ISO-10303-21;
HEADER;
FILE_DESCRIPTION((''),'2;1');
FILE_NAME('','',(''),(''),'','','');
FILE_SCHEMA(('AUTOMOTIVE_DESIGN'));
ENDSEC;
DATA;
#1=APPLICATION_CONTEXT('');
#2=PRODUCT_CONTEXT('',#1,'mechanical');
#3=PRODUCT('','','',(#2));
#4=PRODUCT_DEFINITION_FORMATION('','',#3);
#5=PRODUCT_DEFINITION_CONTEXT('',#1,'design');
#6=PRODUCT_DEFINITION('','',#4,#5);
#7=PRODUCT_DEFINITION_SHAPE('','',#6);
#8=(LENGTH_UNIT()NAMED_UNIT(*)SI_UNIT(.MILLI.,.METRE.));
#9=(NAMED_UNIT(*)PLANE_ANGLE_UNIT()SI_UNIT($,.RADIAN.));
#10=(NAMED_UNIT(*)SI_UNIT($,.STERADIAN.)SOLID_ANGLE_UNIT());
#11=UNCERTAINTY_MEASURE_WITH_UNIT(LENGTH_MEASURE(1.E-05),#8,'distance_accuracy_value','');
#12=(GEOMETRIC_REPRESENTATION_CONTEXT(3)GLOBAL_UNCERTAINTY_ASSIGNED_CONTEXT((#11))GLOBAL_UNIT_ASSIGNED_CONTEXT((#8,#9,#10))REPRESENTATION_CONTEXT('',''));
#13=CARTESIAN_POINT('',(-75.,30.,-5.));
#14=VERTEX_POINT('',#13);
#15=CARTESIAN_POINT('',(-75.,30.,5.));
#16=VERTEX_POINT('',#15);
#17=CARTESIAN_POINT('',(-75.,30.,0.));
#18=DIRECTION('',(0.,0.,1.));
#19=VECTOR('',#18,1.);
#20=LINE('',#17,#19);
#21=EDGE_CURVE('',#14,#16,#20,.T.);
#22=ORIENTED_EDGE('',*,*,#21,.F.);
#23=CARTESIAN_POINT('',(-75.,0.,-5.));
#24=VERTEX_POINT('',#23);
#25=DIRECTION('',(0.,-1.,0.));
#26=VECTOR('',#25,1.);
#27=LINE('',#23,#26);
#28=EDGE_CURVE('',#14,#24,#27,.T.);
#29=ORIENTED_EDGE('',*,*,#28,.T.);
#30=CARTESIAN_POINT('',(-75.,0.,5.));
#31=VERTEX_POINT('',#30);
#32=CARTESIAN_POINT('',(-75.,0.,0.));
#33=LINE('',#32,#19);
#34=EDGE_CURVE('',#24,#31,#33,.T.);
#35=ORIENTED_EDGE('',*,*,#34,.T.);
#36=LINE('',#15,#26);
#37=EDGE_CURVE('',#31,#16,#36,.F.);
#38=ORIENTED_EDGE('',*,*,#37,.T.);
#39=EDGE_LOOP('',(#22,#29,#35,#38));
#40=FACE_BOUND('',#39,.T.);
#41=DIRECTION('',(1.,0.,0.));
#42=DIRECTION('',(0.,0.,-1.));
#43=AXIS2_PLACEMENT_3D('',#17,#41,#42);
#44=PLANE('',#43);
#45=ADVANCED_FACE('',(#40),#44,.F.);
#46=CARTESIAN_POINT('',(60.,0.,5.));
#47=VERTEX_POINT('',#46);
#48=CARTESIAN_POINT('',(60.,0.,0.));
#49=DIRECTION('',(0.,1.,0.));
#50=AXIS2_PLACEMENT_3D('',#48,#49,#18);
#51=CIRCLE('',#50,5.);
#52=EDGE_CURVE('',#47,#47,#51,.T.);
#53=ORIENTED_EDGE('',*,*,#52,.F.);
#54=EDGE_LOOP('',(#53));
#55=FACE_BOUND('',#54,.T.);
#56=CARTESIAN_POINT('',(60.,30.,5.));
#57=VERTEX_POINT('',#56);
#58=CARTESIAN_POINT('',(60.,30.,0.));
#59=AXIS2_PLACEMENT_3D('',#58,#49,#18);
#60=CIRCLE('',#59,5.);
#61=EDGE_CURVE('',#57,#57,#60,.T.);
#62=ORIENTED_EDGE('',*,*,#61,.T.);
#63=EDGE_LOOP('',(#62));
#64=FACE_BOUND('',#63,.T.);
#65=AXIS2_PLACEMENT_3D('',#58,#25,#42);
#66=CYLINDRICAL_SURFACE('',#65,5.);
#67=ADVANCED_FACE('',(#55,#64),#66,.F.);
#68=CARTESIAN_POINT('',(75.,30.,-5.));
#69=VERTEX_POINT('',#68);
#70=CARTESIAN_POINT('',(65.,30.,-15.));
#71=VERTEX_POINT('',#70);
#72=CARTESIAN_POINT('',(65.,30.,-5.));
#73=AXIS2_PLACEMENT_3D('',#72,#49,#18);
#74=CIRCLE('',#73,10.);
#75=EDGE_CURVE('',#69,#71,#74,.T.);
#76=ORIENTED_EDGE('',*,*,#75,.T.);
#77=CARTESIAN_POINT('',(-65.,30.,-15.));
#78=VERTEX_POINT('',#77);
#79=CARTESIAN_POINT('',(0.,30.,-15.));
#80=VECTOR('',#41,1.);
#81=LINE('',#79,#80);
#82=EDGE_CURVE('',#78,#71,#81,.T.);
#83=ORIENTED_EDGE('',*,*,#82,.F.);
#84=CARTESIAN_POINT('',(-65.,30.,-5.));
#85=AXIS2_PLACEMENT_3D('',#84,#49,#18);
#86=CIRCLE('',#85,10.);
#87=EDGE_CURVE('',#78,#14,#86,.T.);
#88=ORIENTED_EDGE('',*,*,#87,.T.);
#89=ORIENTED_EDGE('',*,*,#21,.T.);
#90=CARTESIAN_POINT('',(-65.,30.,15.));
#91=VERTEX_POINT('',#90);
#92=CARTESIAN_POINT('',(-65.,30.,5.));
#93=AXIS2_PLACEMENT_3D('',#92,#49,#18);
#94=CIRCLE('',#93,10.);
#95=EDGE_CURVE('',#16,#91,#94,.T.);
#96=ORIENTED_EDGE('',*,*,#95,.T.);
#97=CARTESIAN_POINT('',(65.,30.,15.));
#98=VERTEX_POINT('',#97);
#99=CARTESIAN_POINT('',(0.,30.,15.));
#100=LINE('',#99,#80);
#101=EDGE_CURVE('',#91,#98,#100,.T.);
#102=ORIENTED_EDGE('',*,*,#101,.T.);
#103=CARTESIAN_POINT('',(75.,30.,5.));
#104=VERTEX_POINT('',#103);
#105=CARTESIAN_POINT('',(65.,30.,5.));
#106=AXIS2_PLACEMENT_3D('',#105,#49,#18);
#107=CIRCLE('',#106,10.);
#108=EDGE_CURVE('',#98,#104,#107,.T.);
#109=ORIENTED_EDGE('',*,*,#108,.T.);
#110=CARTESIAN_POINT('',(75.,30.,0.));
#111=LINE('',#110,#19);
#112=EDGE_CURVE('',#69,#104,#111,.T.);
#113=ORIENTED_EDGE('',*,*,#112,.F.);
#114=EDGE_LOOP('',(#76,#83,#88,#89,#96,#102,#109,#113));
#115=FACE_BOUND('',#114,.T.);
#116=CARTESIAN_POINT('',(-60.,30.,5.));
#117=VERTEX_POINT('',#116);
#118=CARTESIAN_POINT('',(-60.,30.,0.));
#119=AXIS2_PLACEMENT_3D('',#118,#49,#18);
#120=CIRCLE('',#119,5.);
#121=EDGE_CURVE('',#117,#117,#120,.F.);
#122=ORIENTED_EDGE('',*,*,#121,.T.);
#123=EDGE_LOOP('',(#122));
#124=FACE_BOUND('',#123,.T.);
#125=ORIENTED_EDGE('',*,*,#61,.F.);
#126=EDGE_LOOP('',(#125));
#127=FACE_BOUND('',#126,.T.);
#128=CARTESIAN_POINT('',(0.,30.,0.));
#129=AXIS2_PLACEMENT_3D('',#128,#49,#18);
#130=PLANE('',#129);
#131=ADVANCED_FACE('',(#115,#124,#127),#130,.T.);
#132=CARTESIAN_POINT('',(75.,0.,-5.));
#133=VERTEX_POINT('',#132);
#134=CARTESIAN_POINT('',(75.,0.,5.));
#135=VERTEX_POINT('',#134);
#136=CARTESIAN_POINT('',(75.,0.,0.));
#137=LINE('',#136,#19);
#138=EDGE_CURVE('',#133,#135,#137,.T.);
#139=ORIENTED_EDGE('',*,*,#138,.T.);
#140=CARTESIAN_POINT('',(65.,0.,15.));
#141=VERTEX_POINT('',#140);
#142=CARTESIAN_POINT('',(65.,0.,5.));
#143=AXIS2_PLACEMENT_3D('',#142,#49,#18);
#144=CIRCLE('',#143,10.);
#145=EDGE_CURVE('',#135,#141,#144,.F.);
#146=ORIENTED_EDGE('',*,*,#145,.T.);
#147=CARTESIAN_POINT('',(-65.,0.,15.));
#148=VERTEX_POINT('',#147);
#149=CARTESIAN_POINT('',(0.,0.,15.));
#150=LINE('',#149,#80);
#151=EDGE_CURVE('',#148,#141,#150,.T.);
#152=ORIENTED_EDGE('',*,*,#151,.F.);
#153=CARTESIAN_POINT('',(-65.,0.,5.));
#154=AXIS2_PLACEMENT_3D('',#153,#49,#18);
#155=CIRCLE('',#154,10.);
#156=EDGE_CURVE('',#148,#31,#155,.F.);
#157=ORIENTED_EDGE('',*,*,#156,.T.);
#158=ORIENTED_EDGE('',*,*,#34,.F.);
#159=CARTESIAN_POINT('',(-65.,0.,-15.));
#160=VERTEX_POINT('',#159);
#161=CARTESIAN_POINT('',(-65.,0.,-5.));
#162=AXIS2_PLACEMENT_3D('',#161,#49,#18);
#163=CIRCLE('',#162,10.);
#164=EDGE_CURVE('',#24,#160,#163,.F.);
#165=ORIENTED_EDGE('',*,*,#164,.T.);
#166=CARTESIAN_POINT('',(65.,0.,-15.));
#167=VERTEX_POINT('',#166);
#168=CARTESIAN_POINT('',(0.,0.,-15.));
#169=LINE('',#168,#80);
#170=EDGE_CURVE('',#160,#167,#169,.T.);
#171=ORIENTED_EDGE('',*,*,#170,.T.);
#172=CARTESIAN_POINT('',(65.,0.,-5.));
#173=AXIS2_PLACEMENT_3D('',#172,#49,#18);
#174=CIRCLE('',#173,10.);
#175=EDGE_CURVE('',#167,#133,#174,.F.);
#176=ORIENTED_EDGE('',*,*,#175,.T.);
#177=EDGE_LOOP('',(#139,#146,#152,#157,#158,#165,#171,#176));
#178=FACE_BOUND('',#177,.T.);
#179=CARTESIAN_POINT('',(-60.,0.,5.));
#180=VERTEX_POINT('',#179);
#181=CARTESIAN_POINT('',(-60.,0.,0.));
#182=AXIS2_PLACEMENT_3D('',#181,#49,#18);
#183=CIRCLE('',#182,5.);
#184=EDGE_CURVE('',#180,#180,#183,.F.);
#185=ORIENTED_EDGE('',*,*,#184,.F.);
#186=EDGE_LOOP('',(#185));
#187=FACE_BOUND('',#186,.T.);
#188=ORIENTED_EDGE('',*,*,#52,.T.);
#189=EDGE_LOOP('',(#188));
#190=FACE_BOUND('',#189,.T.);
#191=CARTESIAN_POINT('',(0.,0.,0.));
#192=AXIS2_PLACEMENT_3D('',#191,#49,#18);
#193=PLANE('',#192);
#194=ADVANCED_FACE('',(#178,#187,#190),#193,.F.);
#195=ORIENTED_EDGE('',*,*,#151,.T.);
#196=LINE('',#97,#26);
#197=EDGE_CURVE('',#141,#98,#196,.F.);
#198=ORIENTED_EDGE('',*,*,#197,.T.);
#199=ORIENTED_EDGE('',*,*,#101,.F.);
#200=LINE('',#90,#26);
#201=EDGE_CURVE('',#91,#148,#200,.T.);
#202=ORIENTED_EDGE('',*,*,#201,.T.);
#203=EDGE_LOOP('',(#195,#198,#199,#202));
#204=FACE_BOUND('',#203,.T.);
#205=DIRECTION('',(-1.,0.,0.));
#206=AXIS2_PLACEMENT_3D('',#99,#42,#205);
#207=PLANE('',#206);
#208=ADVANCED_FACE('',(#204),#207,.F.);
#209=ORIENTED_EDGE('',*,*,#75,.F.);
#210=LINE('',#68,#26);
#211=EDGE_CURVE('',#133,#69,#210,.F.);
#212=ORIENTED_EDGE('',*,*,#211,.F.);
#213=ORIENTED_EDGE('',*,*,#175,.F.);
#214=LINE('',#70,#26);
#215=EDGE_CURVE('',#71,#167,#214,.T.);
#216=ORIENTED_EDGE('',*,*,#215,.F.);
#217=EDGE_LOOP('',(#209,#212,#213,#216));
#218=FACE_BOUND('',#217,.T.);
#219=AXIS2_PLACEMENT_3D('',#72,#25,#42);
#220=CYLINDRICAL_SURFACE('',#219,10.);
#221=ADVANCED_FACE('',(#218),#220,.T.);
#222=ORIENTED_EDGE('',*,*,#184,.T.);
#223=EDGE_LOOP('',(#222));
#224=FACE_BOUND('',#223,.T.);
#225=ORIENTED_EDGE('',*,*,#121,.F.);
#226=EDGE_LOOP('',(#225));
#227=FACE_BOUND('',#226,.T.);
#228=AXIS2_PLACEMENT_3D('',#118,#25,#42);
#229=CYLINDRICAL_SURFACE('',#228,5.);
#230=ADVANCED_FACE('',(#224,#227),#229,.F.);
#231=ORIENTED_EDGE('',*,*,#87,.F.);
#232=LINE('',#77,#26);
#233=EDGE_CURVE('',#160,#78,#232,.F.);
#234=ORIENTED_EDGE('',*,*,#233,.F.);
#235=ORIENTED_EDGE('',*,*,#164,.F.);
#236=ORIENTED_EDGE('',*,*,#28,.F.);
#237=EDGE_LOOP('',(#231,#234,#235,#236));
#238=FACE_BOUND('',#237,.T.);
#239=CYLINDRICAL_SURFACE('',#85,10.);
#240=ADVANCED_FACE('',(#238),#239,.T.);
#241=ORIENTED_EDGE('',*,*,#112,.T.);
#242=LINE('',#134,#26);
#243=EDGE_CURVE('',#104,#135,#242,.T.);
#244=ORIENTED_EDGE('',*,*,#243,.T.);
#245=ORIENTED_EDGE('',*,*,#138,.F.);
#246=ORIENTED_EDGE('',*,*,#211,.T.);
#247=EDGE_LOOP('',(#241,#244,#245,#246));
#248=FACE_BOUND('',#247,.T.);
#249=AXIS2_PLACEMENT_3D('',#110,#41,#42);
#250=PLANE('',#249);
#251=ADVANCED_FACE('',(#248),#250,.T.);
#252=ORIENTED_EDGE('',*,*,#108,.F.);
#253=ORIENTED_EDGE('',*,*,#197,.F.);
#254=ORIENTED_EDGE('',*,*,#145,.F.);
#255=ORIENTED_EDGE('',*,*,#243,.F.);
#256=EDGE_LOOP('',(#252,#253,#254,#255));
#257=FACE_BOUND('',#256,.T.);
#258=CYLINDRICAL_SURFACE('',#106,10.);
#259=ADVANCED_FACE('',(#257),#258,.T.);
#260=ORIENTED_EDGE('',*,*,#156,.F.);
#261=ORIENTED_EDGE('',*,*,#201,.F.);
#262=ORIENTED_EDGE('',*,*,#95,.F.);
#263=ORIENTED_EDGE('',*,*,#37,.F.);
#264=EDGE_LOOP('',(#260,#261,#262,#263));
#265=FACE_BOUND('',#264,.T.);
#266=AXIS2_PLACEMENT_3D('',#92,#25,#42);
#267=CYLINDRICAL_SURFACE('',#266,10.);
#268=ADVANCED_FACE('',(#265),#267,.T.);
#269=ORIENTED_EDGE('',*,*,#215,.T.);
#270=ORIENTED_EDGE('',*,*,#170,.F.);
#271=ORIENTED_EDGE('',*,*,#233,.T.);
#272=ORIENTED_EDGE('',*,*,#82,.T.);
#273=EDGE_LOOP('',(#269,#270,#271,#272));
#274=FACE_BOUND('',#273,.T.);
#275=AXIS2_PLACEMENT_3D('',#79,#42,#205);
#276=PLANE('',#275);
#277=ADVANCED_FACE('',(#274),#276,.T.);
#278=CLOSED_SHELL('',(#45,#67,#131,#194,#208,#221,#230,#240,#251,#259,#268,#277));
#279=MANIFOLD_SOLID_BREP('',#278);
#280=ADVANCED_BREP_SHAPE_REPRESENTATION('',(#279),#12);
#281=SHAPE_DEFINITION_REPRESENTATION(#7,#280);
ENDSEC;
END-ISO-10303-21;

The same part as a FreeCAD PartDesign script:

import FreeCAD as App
import Part
import Sketcher
Q = App.Units.Quantity


def edges_at(feature, points):
    """Names of the edges that pass closest to the given points."""
    edges = feature.Shape.Edges
    near = lambda p: min(range(len(edges)), key=lambda i: edges[i].distToShape(Part.Vertex(*p))[0])
    return sorted({f"Edge{near(p) + 1}" for p in points})


def add_polygon(sketch, points):
    """Adds a closed chain of lines whose ends are joined by coincident constraints."""
    first, n = sketch.GeometryCount, len(points)
    for a, b in zip(points, points[1:] + points[:1]):
        sketch.addGeometry(Part.LineSegment(App.Vector(*a, 0), App.Vector(*b, 0)), False)
    for i in range(n):
        sketch.addConstraint(Sketcher.Constraint("Coincident", first + i, 2, first + (i + 1) % n, 1))

doc = App.newDocument("Part")
body = doc.addObject("PartDesign::Body", "Body")

# Sketch on XZ plane
sketch1 = body.newObject("Sketcher::SketchObject", "Sketch")
sketch1.AttachmentSupport = (doc.getObject("XZ_Plane"), [""])
sketch1.MapMode = "FlatFace"
add_polygon(sketch1, [(75, 15), (75, -15), (-75, -15), (-75, 15)])  # lines 0-3
sketch1.addGeometry(Part.Circle(App.Vector(-60, 0, 0), App.Vector(0, 0, 1), 5), False)  # 4
sketch1.addGeometry(Part.Circle(App.Vector(60, 0, 0), App.Vector(0, 0, 1), 5), False)  # 5
sketch1.addConstraint([
    Sketcher.Constraint("Vertical", 0),
    Sketcher.Constraint("Horizontal", 1),
    Sketcher.Constraint("Vertical", 2),
    Sketcher.Constraint("Horizontal", 3),
    Sketcher.Constraint("Equal", 4, 5),
    Sketcher.Constraint("Symmetric", 4, 3, 5, 3, -1, 1),
    Sketcher.Constraint("Symmetric", 0, 2, 2, 2, -1, 1),
    Sketcher.Constraint("PointOnObject", 4, 3, -1),
    Sketcher.Constraint("Diameter", 4, Q("10 mm")),
    Sketcher.Constraint("DistanceX", 1, 2, 1, 1, Q("150 mm")),
    Sketcher.Constraint("DistanceY", 0, 2, 0, 1, Q("30 mm")),
    Sketcher.Constraint("DistanceX", 4, 3, -1, 1, Q("60 mm")),
])
pad1 = body.newObject("PartDesign::Pad", "Pad")
pad1.Profile = sketch1
pad1.Length = 30
pad1.Reversed = True
doc.recompute()

fillet = body.newObject("PartDesign::Fillet", "Fillet")
fillet.Base = (pad1, edges_at(pad1, [
    (-75, 15, 15),
    (-75, 15, -15),
    (75, 15, -15),
    (75, 15, 15),
]))
fillet.Radius = 10

doc.recompute()
